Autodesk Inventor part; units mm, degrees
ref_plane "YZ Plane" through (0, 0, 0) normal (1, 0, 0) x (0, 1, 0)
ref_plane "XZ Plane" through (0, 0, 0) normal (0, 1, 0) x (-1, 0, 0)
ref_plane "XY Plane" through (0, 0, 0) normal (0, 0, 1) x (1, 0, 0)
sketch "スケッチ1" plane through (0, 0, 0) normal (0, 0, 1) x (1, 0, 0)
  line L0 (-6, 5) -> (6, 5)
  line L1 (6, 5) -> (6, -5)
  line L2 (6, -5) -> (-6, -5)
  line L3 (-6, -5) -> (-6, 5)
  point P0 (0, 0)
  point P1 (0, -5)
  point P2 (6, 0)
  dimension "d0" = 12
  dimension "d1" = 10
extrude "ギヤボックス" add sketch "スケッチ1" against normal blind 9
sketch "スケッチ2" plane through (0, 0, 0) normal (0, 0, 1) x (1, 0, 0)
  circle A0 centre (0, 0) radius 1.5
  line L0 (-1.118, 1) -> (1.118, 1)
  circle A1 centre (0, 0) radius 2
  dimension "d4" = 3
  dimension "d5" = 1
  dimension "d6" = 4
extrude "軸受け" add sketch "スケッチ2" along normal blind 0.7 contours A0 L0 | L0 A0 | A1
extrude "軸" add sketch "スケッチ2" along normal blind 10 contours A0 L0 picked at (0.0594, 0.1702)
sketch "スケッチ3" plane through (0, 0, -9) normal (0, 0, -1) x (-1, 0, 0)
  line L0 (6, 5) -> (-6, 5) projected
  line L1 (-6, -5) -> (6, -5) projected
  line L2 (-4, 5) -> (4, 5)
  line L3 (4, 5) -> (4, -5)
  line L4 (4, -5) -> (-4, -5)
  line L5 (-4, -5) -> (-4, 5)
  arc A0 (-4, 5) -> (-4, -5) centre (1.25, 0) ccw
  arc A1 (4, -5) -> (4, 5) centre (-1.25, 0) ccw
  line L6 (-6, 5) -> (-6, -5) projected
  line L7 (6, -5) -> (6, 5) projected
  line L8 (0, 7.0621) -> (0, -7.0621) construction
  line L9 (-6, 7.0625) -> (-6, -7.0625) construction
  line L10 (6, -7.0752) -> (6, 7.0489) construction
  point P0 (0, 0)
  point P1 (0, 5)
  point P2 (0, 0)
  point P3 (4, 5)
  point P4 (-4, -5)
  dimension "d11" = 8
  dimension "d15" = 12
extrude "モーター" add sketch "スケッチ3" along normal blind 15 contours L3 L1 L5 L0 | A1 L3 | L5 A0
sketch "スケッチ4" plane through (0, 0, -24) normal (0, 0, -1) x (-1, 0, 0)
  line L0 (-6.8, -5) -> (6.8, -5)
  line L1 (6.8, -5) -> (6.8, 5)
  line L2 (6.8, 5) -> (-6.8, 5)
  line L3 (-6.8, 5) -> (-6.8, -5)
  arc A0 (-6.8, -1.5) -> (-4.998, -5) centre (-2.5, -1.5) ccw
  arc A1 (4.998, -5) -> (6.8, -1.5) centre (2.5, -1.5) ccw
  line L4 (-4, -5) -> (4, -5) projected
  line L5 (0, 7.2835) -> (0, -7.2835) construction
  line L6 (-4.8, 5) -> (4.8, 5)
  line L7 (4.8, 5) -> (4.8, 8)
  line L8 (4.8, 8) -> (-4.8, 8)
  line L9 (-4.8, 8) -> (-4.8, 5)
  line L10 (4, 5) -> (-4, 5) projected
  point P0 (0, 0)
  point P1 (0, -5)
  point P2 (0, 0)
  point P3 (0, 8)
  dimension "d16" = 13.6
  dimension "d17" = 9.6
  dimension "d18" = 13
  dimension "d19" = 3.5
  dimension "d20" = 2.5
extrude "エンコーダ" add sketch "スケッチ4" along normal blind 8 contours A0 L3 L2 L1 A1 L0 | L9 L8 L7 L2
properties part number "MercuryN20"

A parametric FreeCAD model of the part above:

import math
import FreeCAD as App
import Part
import Sketcher
from FreeCAD import Vector


def add_polygon(sketch, points):
    """Adds a closed chain of lines whose ends are joined by coincident constraints."""
    first, n = sketch.GeometryCount, len(points)
    for a, b in zip(points, points[1:] + points[:1]):
        sketch.addGeometry(Part.LineSegment(App.Vector(*a, 0), App.Vector(*b, 0)), False)
    for i in range(n):
        sketch.addConstraint(Sketcher.Constraint("Coincident", first + i, 2, first + (i + 1) % n, 1))

doc = App.newDocument("Part")
body = doc.addObject("PartDesign::Body", "Body")

# Sketch on XY plane
sketch1 = doc.addObject("Sketcher::SketchObject", "Sketch")
body.addObject(sketch1)
sketch1.AttachmentSupport = (doc.XY_Plane, [""])
sketch1.MapMode = "FlatFace"
add_polygon(sketch1, [(6, 5), (-6, 5), (-6, -5), (6, -5)])  # lines 0-3
sketch1.addConstraint(Sketcher.Constraint("Horizontal", 0))
sketch1.addConstraint(Sketcher.Constraint("Vertical", 1))
sketch1.addConstraint(Sketcher.Constraint("Horizontal", 2))
sketch1.addConstraint(Sketcher.Constraint("Vertical", 3))
sketch1.addConstraint(Sketcher.Constraint("Symmetric", 0, 2, 2, 2, -1, 1))
sketch1.addConstraint(Sketcher.Constraint("DistanceX", 0, 2, 0, 1, 12.0))
sketch1.addConstraint(Sketcher.Constraint("DistanceY", 1, 2, 1, 1, 10.0))
pad1 = doc.addObject("PartDesign::Pad", "Pad")
body.addObject(pad1)
pad1.Profile = sketch1
pad1.Length = 9
pad1.Reversed = True

# Sketch on XY plane
sketch2 = doc.addObject("Sketcher::SketchObject", "Sketch001")
body.addObject(sketch2)
sketch2.AttachmentSupport = (doc.XY_Plane, [""])
sketch2.MapMode = "FlatFace"
sketch2.addGeometry(Part.Circle(Vector(0, 0, 0), Vector(0, 0, 1), 2), False)
sketch2.addConstraint(Sketcher.Constraint("Coincident", 0, 3, -1, 1))
sketch2.addConstraint(Sketcher.Constraint("Diameter", 0, 4.0))
pad2 = doc.addObject("PartDesign::Pad", "Pad001")
body.addObject(pad2)
pad2.Profile = sketch2
pad2.Length = 0.7

# Sketch on XY plane
sketch3 = doc.addObject("Sketcher::SketchObject", "Sketch002")
body.addObject(sketch3)
sketch3.AttachmentSupport = (doc.XY_Plane, [""])
sketch3.MapMode = "FlatFace"
sketch3.addGeometry(Part.ArcOfCircle(Part.Circle(Vector(0, 0, 0), Vector(0, 0, 1), 1.5), math.radians(138.18882), math.radians(401.81118)), False)
sketch3.addGeometry(Part.LineSegment(Vector(-1.118, 1, 0), Vector(1.118, 1, 0)), False)
sketch3.addConstraint(Sketcher.Constraint("Coincident", 0, 1, 1, 1))
sketch3.addConstraint(Sketcher.Constraint("Coincident", 1, 2, 0, 2))
sketch3.addConstraint(Sketcher.Constraint("Horizontal", 1))
sketch3.addConstraint(Sketcher.Constraint("Coincident", 0, 3, -1, 1))
sketch3.addConstraint(Sketcher.Constraint("Radius", 0, 1.5))
sketch3.addConstraint(Sketcher.Constraint("DistanceY", -1, 1, 0, 1, 1.0))
pad3 = doc.addObject("PartDesign::Pad", "Pad002")
body.addObject(pad3)
pad3.Profile = sketch3
pad3.Length = 10

# Sketch on XY plane
sketch4 = doc.addObject("Sketcher::SketchObject", "Sketch003")
body.addObject(sketch4)
sketch4.AttachmentSupport = (doc.XY_Plane, [""])
sketch4.MapMode = "FlatFace"
sketch4.AttachmentOffset = App.Placement(Vector(0, 0, -9), App.Rotation())
sketch4.addGeometry(Part.LineSegment(Vector(4, -5, 0), Vector(-4, -5, 0)), False)
sketch4.addGeometry(Part.ArcOfCircle(Part.Circle(Vector(1.25, 0, 0), Vector(0, 0, 1), 7.25), math.radians(136.397181), math.radians(223.602819)), False)
sketch4.addGeometry(Part.LineSegment(Vector(-4, 5, 0), Vector(4, 5, 0)), False)
sketch4.addGeometry(Part.ArcOfCircle(Part.Circle(Vector(-1.25, 0, 0), Vector(0, 0, 1), 7.25), math.radians(-43.602819), math.radians(43.602819)), False)
sketch4.addConstraint(Sketcher.Constraint("Coincident", 0, 2, 1, 2))
sketch4.addConstraint(Sketcher.Constraint("Coincident", 1, 1, 2, 1))
sketch4.addConstraint(Sketcher.Constraint("Coincident", 2, 2, 3, 2))
sketch4.addConstraint(Sketcher.Constraint("Coincident", 3, 1, 0, 1))
sketch4.addConstraint(Sketcher.Constraint("Horizontal", 0))
sketch4.addConstraint(Sketcher.Constraint("Horizontal", 2))
sketch4.addConstraint(Sketcher.Constraint("Equal", 1, 3))
sketch4.addConstraint(Sketcher.Constraint("Symmetric", 1, 3, 3, 3, -1, 1))
sketch4.addConstraint(Sketcher.Constraint("Symmetric", 0, 2, 1, 1, -1))
sketch4.addConstraint(Sketcher.Constraint("DistanceX", 0, 2, 0, 1, 8.0))
sketch4.addConstraint(Sketcher.Constraint("Radius", 1, 7.25))
sketch4.addConstraint(Sketcher.Constraint("DistanceY", 0, 2, -1, 1, 5.0))
pad4 = doc.addObject("PartDesign::Pad", "Pad003")
body.addObject(pad4)
pad4.Profile = sketch4
pad4.Length = 15
pad4.Reversed = True

# Sketch on XY plane
sketch5 = doc.addObject("Sketcher::SketchObject", "Sketch004")
body.addObject(sketch5)
sketch5.AttachmentSupport = (doc.XY_Plane, [""])
sketch5.MapMode = "FlatFace"
sketch5.AttachmentOffset = App.Placement(Vector(0, 0, -24), App.Rotation())
sketch5.addGeometry(Part.ArcOfCircle(Part.Circle(Vector(2.5, -1.5, 0), Vector(0, 0, 1), 4.3), math.radians(-54.484008), math.radians(0)), False)
sketch5.addGeometry(Part.LineSegment(Vector(4.998, -5, 0), Vector(-4.998, -5, 0)), False)
sketch5.addGeometry(Part.ArcOfCircle(Part.Circle(Vector(-2.5, -1.5, 0), Vector(0, 0, 1), 4.3), math.radians(180), math.radians(234.484008)), False)
sketch5.addGeometry(Part.LineSegment(Vector(-6.8, -1.5, 0), Vector(-6.8, 5, 0)), False)
sketch5.addGeometry(Part.LineSegment(Vector(-6.8, 5, 0), Vector(-4.8, 5, 0)), False)
sketch5.addGeometry(Part.LineSegment(Vector(-4.8, 5, 0), Vector(-4.8, 8, 0)), False)
sketch5.addGeometry(Part.LineSegment(Vector(-4.8, 8, 0), Vector(4.8, 8, 0)), False)
sketch5.addGeometry(Part.LineSegment(Vector(4.8, 8, 0), Vector(4.8, 5, 0)), False)
sketch5.addGeometry(Part.LineSegment(Vector(4.8, 5, 0), Vector(6.8, 5, 0)), False)
sketch5.addGeometry(Part.LineSegment(Vector(6.8, 5, 0), Vector(6.8, -1.5, 0)), False)
sketch5.addConstraint(Sketcher.Constraint("Coincident", 0, 1, 1, 1))
sketch5.addConstraint(Sketcher.Constraint("Coincident", 1, 2, 2, 2))
sketch5.addConstraint(Sketcher.Constraint("Tangent", 2, 1, 3, 1))
sketch5.addConstraint(Sketcher.Constraint("Coincident", 3, 2, 4, 1))
sketch5.addConstraint(Sketcher.Constraint("Coincident", 4, 2, 5, 1))
sketch5.addConstraint(Sketcher.Constraint("Coincident", 5, 2, 6, 1))
sketch5.addConstraint(Sketcher.Constraint("Coincident", 6, 2, 7, 1))
sketch5.addConstraint(Sketcher.Constraint("Coincident", 7, 2, 8, 1))
sketch5.addConstraint(Sketcher.Constraint("Coincident", 8, 2, 9, 1))
sketch5.addConstraint(Sketcher.Constraint("Tangent", 9, 2, 0, 2))
sketch5.addConstraint(Sketcher.Constraint("Horizontal", 1))
sketch5.addConstraint(Sketcher.Constraint("Vertical", 3))
sketch5.addConstraint(Sketcher.Constraint("Horizontal", 4))
sketch5.addConstraint(Sketcher.Constraint("Vertical", 5))
sketch5.addConstraint(Sketcher.Constraint("Horizontal", 6))
sketch5.addConstraint(Sketcher.Constraint("Vertical", 7))
sketch5.addConstraint(Sketcher.Constraint("Horizontal", 8))
sketch5.addConstraint(Sketcher.Constraint("Vertical", 9))
sketch5.addConstraint(Sketcher.Constraint("Equal", 0, 2))
sketch5.addConstraint(Sketcher.Constraint("Symmetric", 0, 3, 2, 3, -2))
sketch5.addConstraint(Sketcher.Constraint("Symmetric", 4, 2, 7, 2, -2))
sketch5.addConstraint(Sketcher.Constraint("DistanceX", 6, 1, 6, 2, 9.6))
sketch5.addConstraint(Sketcher.Constraint("DistanceX", -1, 1, 0, 3, 2.5))
sketch5.addConstraint(Sketcher.Constraint("Radius", 0, 4.3))
sketch5.addConstraint(Sketcher.Constraint("DistanceY", 0, 1, 0, 3, 3.5))
sketch5.addConstraint(Sketcher.Constraint("DistanceY", 5, 1, 5, 2, 3.0))
sketch5.addConstraint(Sketcher.Constraint("DistanceY", 3, 1, 3, 2, 6.5))
sketch5.addConstraint(Sketcher.Constraint("DistanceY", 0, 1, -1, 1, 5.0))
pad5 = doc.addObject("PartDesign::Pad", "Pad004")
body.addObject(pad5)
pad5.Profile = sketch5
pad5.Length = 8
pad5.Reversed = True

doc.recompute()
